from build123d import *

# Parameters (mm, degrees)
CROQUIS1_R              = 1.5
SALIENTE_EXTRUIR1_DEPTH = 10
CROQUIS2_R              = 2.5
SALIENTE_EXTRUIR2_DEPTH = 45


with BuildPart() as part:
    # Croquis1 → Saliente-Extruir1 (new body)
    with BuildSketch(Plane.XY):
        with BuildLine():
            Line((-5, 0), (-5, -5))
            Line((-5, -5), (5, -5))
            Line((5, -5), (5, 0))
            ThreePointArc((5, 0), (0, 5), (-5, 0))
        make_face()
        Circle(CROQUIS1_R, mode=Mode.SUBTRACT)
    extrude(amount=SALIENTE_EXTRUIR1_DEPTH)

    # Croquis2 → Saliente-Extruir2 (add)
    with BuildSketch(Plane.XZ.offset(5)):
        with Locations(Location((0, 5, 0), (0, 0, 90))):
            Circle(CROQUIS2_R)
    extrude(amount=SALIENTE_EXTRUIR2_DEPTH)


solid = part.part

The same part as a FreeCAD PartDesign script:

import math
import FreeCAD as App
import Part
import Sketcher

doc = App.newDocument("Part")
params = doc.addObject("Spreadsheet::Sheet", "Params")
for row, (alias, value) in enumerate([
    ("sketch1_diameter", "3 mm"),
    ("sketch1_radius", "5 mm"),
    ("sketch1_height", "5 mm"),
    ("pad1_length", "10 mm"),
    ("sketch2_diameter", "5 mm"),
    ("pad2_length", "45 mm"),
], start=1):
    params.set(f"A{row}", alias)
    params.set(f"B{row}", "=" + value)
    params.setAlias(f"B{row}", alias)

body = doc.addObject("PartDesign::Body", "Body")

# Sketch on XY plane
sketch1 = doc.addObject("Sketcher::SketchObject", "Sketch")
body.addObject(sketch1)
sketch1.AttachmentSupport = (doc.XY_Plane, [""])
sketch1.MapMode = "FlatFace"
sketch1.addGeometry(Part.LineSegment(App.Vector(-5, 0, 0), App.Vector(-5, -5, 0)), False)
sketch1.addGeometry(Part.LineSegment(App.Vector(-5, -5, 0), App.Vector(5, -5, 0)), False)
sketch1.addGeometry(Part.LineSegment(App.Vector(5, -5, 0), App.Vector(5, 0, 0)), False)
sketch1.addGeometry(Part.ArcOfCircle(Part.Circle(App.Vector(0, 0, 0), App.Vector(0, 0, 1), 5), math.radians(0), math.radians(180)), False)
sketch1.addGeometry(Part.Circle(App.Vector(0, 0, 0), App.Vector(0, 0, 1), 1.5), False)
sketch1.addConstraint(Sketcher.Constraint("Coincident", 0, 2, 1, 1))
sketch1.addConstraint(Sketcher.Constraint("Coincident", 1, 2, 2, 1))
sketch1.addConstraint(Sketcher.Constraint("Tangent", 2, 2, 3, 1))
sketch1.addConstraint(Sketcher.Constraint("Tangent", 3, 2, 0, 1))
sketch1.addConstraint(Sketcher.Constraint("Vertical", 0))
sketch1.addConstraint(Sketcher.Constraint("Horizontal", 1))
sketch1.addConstraint(Sketcher.Constraint("Vertical", 2))
sketch1.addConstraint(Sketcher.Constraint("Coincident", 3, 3, -1, 1))
sketch1.addConstraint(Sketcher.Constraint("Coincident", 4, 3, -1, 1))
sketch1.addConstraint(Sketcher.Constraint("Diameter", 4, 3.0))
sketch1.addConstraint(Sketcher.Constraint("Radius", 3, 5.0))
sketch1.addConstraint(Sketcher.Constraint("DistanceY", 0, 2, 0, 1, 5.0))
sketch1.setExpression("Constraints[9]", "Params.sketch1_diameter")
sketch1.setExpression("Constraints[10]", "Params.sketch1_radius")
sketch1.setExpression("Constraints[11]", "Params.sketch1_height")
pad1 = doc.addObject("PartDesign::Pad", "Pad")
body.addObject(pad1)
pad1.Profile = sketch1
pad1.setExpression("Length", "Params.pad1_length")

# Sketch on XZ plane
sketch2 = doc.addObject("Sketcher::SketchObject", "Sketch001")
body.addObject(sketch2)
sketch2.AttachmentSupport = (doc.XZ_Plane, [""])
sketch2.MapMode = "FlatFace"
sketch2.AttachmentOffset = App.Placement(App.Vector(0, 0, 5), App.Rotation())
sketch2.addGeometry(Part.Circle(App.Vector(0, 5, 0), App.Vector(0, 0, 1), 2.5), False)
sketch2.addConstraint(Sketcher.Constraint("PointOnObject", 0, 3, -2))
sketch2.addConstraint(Sketcher.Constraint("Diameter", 0, 5.0))
sketch2.addConstraint(Sketcher.Constraint("DistanceY", -1, 1, 0, 3, 5.0))
sketch2.setExpression("Constraints[1]", "Params.sketch2_diameter")
pad2 = doc.addObject("PartDesign::Pad", "Pad001")
body.addObject(pad2)
pad2.Profile = sketch2
pad2.setExpression("Length", "Params.pad2_length")

doc.recompute()
